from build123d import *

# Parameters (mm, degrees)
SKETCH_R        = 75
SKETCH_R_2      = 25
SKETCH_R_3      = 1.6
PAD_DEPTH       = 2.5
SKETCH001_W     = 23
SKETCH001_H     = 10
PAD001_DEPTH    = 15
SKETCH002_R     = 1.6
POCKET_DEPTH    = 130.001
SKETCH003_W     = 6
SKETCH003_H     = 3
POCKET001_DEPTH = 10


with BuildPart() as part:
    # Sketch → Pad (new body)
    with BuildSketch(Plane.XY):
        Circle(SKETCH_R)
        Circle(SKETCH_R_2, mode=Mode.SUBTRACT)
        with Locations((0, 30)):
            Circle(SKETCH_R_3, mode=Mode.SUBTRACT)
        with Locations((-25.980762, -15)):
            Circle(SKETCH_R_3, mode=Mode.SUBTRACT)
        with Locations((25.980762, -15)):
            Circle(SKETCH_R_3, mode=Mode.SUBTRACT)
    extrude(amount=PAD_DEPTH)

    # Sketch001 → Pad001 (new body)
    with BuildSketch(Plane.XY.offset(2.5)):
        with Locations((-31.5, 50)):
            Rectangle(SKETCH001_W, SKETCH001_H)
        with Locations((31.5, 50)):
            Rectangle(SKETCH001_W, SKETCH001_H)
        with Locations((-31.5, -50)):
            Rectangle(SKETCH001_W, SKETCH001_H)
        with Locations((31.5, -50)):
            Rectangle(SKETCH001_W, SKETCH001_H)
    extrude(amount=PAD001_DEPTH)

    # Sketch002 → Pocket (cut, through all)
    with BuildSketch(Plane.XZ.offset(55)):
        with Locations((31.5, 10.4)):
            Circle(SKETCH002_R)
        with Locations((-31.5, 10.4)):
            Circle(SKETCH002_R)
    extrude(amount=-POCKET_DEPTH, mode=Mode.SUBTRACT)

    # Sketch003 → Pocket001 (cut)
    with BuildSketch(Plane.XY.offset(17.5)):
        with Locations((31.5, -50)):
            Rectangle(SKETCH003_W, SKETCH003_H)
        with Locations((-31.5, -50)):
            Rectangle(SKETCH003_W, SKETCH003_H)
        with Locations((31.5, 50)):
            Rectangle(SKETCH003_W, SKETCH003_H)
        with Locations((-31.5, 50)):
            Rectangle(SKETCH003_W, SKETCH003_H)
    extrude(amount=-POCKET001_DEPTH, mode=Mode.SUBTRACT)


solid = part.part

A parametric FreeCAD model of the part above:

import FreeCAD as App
import Part
import Sketcher
from FreeCAD import Vector

doc = App.newDocument("Part")
body = doc.addObject("PartDesign::Body", "Body")

# Sketch on XY plane
sketch1 = doc.addObject("Sketcher::SketchObject", "Sketch")
body.addObject(sketch1)
sketch1.AttachmentSupport = (doc.XY_Plane, [""])
sketch1.MapMode = "FlatFace"
sketch1.addGeometry([
    Part.Circle(Vector(0, 0, 0), Vector(0, 0, 1), 75),  # 0
    Part.Circle(Vector(-26, -15, 0), Vector(0, 0, 1), 1.6),  # 1
    Part.Circle(Vector(0, 0, 0), Vector(0, 0, 1), 25),  # 2
    Part.Circle(Vector(26, -15, 0), Vector(0, 0, 1), 1.6),  # 3
    Part.Circle(Vector(0, 30, 0), Vector(0, 0, 1), 1.6),  # 4
], False)
sketch1.addConstraint([
    Sketcher.Constraint("Coincident", 0, 3, -1, 1),
    Sketcher.Constraint("Coincident", 2, 3, -1, 1),
    Sketcher.Constraint("Equal", 1, 3),
    Sketcher.Constraint("Equal", 3, 4),
    Sketcher.Constraint("Symmetric", 1, 3, 3, 3, -2),
    Sketcher.Constraint("PointOnObject", 4, 3, -2),
    Sketcher.Constraint("Diameter", 0, 150.0),
    Sketcher.Constraint("Diameter", 2, 50.0),
    Sketcher.Constraint("Diameter", 1, 3.2),
    Sketcher.Constraint("DistanceY", 1, 3, -1, 1, 15.0),
    Sketcher.Constraint("DistanceY", -1, 1, 4, 3, 30.0),
    Sketcher.Constraint("DistanceX", 1, 3, -1, 1, 25.980762),
])
pad1 = doc.addObject("PartDesign::Pad", "Pad")
body.addObject(pad1)
pad1.Profile = sketch1
pad1.Length = 2.5

# Sketch on XY plane
sketch2 = doc.addObject("Sketcher::SketchObject", "Sketch001")
body.addObject(sketch2)
sketch2.AttachmentSupport = (doc.XY_Plane, [""])
sketch2.MapMode = "FlatFace"
sketch2.AttachmentOffset = App.Placement(Vector(0, 0, 2.5), App.Rotation())
sketch2.addGeometry([
    Part.LineSegment(Vector(-43, 55, 0), Vector(-43, 45, 0)),  # 0
    Part.LineSegment(Vector(-43, 45, 0), Vector(-20, 45, 0)),  # 1
    Part.LineSegment(Vector(-20, 45, 0), Vector(-20, 55, 0)),  # 2
    Part.LineSegment(Vector(-20, 55, 0), Vector(-43, 55, 0)),  # 3
    Part.LineSegment(Vector(20, 55, 0), Vector(20, 45, 0)),  # 4
    Part.LineSegment(Vector(20, 45, 0), Vector(43, 45, 0)),  # 5
    Part.LineSegment(Vector(43, 45, 0), Vector(43, 55, 0)),  # 6
    Part.LineSegment(Vector(43, 55, 0), Vector(20, 55, 0)),  # 7
    Part.LineSegment(Vector(-43, -45, 0), Vector(-43, -55, 0)),  # 8
    Part.LineSegment(Vector(-43, -55, 0), Vector(-20, -55, 0)),  # 9
    Part.LineSegment(Vector(-20, -55, 0), Vector(-20, -45, 0)),  # 10
    Part.LineSegment(Vector(-20, -45, 0), Vector(-43, -45, 0)),  # 11
    Part.LineSegment(Vector(20, -45, 0), Vector(20, -55, 0)),  # 12
    Part.LineSegment(Vector(20, -55, 0), Vector(43, -55, 0)),  # 13
    Part.LineSegment(Vector(43, -55, 0), Vector(43, -45, 0)),  # 14
    Part.LineSegment(Vector(43, -45, 0), Vector(20, -45, 0)),  # 15
], False)
sketch2.addConstraint([
    Sketcher.Constraint("Coincident", 0, 2, 1, 1),
    Sketcher.Constraint("Coincident", 1, 2, 2, 1),
    Sketcher.Constraint("Coincident", 2, 2, 3, 1),
    Sketcher.Constraint("Coincident", 3, 2, 0, 1),
    Sketcher.Constraint("Coincident", 4, 2, 5, 1),
    Sketcher.Constraint("Coincident", 5, 2, 6, 1),
    Sketcher.Constraint("Coincident", 6, 2, 7, 1),
    Sketcher.Constraint("Coincident", 7, 2, 4, 1),
    Sketcher.Constraint("Coincident", 8, 2, 9, 1),
    Sketcher.Constraint("Coincident", 9, 2, 10, 1),
    Sketcher.Constraint("Coincident", 10, 2, 11, 1),
    Sketcher.Constraint("Coincident", 11, 2, 8, 1),
    Sketcher.Constraint("Coincident", 12, 2, 13, 1),
    Sketcher.Constraint("Coincident", 13, 2, 14, 1),
    Sketcher.Constraint("Coincident", 14, 2, 15, 1),
    Sketcher.Constraint("Coincident", 15, 2, 12, 1),
    Sketcher.Constraint("Vertical", 0),
    Sketcher.Constraint("Horizontal", 1),
    Sketcher.Constraint("Vertical", 2),
    Sketcher.Constraint("Horizontal", 3),
    Sketcher.Constraint("Vertical", 4),
    Sketcher.Constraint("Horizontal", 5),
    Sketcher.Constraint("Vertical", 6),
    Sketcher.Constraint("Horizontal", 7),
    Sketcher.Constraint("Vertical", 8),
    Sketcher.Constraint("Horizontal", 9),
    Sketcher.Constraint("Vertical", 10),
    Sketcher.Constraint("Horizontal", 11),
    Sketcher.Constraint("Vertical", 12),
    Sketcher.Constraint("Horizontal", 13),
    Sketcher.Constraint("Vertical", 14),
    Sketcher.Constraint("Horizontal", 15),
    Sketcher.Constraint("Symmetric", 6, 2, 8, 2, -1, 1),
    Sketcher.Constraint("Symmetric", 4, 2, 10, 2, -1, 1),
    Sketcher.Constraint("Symmetric", 2, 2, 12, 2, -1, 1),
    Sketcher.Constraint("Symmetric", 0, 2, 14, 2, -1, 1),
    Sketcher.Constraint("Symmetric", 1, 2, 4, 2, -2),
    Sketcher.Constraint("Symmetric", 3, 2, 6, 2, -2),
    Sketcher.Constraint("DistanceX", 1, 1, 1, 2, 23.0),
    Sketcher.Constraint("DistanceY", 0, 2, 0, 1, 10.0),
    Sketcher.Constraint("DistanceX", 0, 2, -1, 1, 43.0),
    Sketcher.Constraint("DistanceY", -1, 1, 0, 2, 45.0),
])
pad2 = doc.addObject("PartDesign::Pad", "Pad001")
body.addObject(pad2)
pad2.Profile = sketch2
pad2.Length = 15

# Sketch on XZ plane
sketch3 = doc.addObject("Sketcher::SketchObject", "Sketch002")
body.addObject(sketch3)
sketch3.AttachmentSupport = (doc.XZ_Plane, [""])
sketch3.MapMode = "FlatFace"
sketch3.AttachmentOffset = App.Placement(Vector(0, 0, 55), App.Rotation())
sketch3.addGeometry([
    Part.Circle(Vector(31.5, 10.4, 0), Vector(0, 0, 1), 1.6),
    Part.Circle(Vector(-31.5, 10.4, 0), Vector(0, 0, 1), 1.6),
], False)
sketch3.addConstraint([
    Sketcher.Constraint("Equal", 0, 1),
    Sketcher.Constraint("Symmetric", 0, 3, 1, 3, -2),
    Sketcher.Constraint("Diameter", 0, 3.2),
    Sketcher.Constraint("DistanceX", 1, 3, 0, 3, 63.0),
    Sketcher.Constraint("DistanceY", -1, 1, 0, 3, 10.4),
])
pocket1 = doc.addObject("PartDesign::Pocket", "Pocket")
body.addObject(pocket1)
pocket1.Profile = sketch3
pocket1.Type = "ThroughAll"

# Sketch on XY plane
sketch4 = doc.addObject("Sketcher::SketchObject", "Sketch003")
body.addObject(sketch4)
sketch4.AttachmentSupport = (doc.XY_Plane, [""])
sketch4.MapMode = "FlatFace"
sketch4.AttachmentOffset = App.Placement(Vector(0, 0, 17.5), App.Rotation())
sketch4.addGeometry([
    Part.LineSegment(Vector(28.5, -48.5, 0), Vector(28.5, -51.5, 0)),  # 0
    Part.LineSegment(Vector(28.5, -51.5, 0), Vector(34.5, -51.5, 0)),  # 1
    Part.LineSegment(Vector(34.5, -51.5, 0), Vector(34.5, -48.5, 0)),  # 2
    Part.LineSegment(Vector(34.5, -48.5, 0), Vector(28.5, -48.5, 0)),  # 3
    Part.LineSegment(Vector(-34.5, -48.5, 0), Vector(-34.5, -51.5, 0)),  # 4
    Part.LineSegment(Vector(-34.5, -51.5, 0), Vector(-28.5, -51.5, 0)),  # 5
    Part.LineSegment(Vector(-28.5, -51.5, 0), Vector(-28.5, -48.5, 0)),  # 6
    Part.LineSegment(Vector(-28.5, -48.5, 0), Vector(-34.5, -48.5, 0)),  # 7
    Part.LineSegment(Vector(28.5, 51.5, 0), Vector(28.5, 48.5, 0)),  # 8
    Part.LineSegment(Vector(28.5, 48.5, 0), Vector(34.5, 48.5, 0)),  # 9
    Part.LineSegment(Vector(34.5, 48.5, 0), Vector(34.5, 51.5, 0)),  # 10
    Part.LineSegment(Vector(34.5, 51.5, 0), Vector(28.5, 51.5, 0)),  # 11
    Part.LineSegment(Vector(-34.5, 51.5, 0), Vector(-34.5, 48.5, 0)),  # 12
    Part.LineSegment(Vector(-34.5, 48.5, 0), Vector(-28.5, 48.5, 0)),  # 13
    Part.LineSegment(Vector(-28.5, 48.5, 0), Vector(-28.5, 51.5, 0)),  # 14
    Part.LineSegment(Vector(-28.5, 51.5, 0), Vector(-34.5, 51.5, 0)),  # 15
], False)
sketch4.addConstraint([
    Sketcher.Constraint("Coincident", 0, 2, 1, 1),
    Sketcher.Constraint("Coincident", 1, 2, 2, 1),
    Sketcher.Constraint("Coincident", 2, 2, 3, 1),
    Sketcher.Constraint("Coincident", 3, 2, 0, 1),
    Sketcher.Constraint("Coincident", 4, 2, 5, 1),
    Sketcher.Constraint("Coincident", 5, 2, 6, 1),
    Sketcher.Constraint("Coincident", 6, 2, 7, 1),
    Sketcher.Constraint("Coincident", 7, 2, 4, 1),
    Sketcher.Constraint("Coincident", 8, 2, 9, 1),
    Sketcher.Constraint("Coincident", 9, 2, 10, 1),
    Sketcher.Constraint("Coincident", 10, 2, 11, 1),
    Sketcher.Constraint("Coincident", 11, 2, 8, 1),
    Sketcher.Constraint("Coincident", 12, 2, 13, 1),
    Sketcher.Constraint("Coincident", 13, 2, 14, 1),
    Sketcher.Constraint("Coincident", 14, 2, 15, 1),
    Sketcher.Constraint("Coincident", 15, 2, 12, 1),
    Sketcher.Constraint("Vertical", 0),
    Sketcher.Constraint("Horizontal", 1),
    Sketcher.Constraint("Vertical", 2),
    Sketcher.Constraint("Horizontal", 3),
    Sketcher.Constraint("Vertical", 4),
    Sketcher.Constraint("Horizontal", 5),
    Sketcher.Constraint("Vertical", 6),
    Sketcher.Constraint("Horizontal", 7),
    Sketcher.Constraint("Vertical", 8),
    Sketcher.Constraint("Horizontal", 9),
    Sketcher.Constraint("Vertical", 10),
    Sketcher.Constraint("Horizontal", 11),
    Sketcher.Constraint("Vertical", 12),
    Sketcher.Constraint("Horizontal", 13),
    Sketcher.Constraint("Vertical", 14),
    Sketcher.Constraint("Horizontal", 15),
    Sketcher.Constraint("Symmetric", 6, 2, 8, 2, -1, 1),
    Sketcher.Constraint("Symmetric", 4, 2, 10, 2, -1, 1),
    Sketcher.Constraint("Symmetric", 2, 2, 12, 2, -1, 1),
    Sketcher.Constraint("Symmetric", 0, 2, 14, 2, -1, 1),
    Sketcher.Constraint("Symmetric", 1, 2, 4, 2, -2),
    Sketcher.Constraint("Symmetric", 3, 2, 6, 2, -2),
    Sketcher.Constraint("DistanceX", 1, 1, 1, 2, 6.0),
    Sketcher.Constraint("DistanceY", 0, 2, 0, 1, 3.0),
    Sketcher.Constraint("DistanceX", 4, 2, 0, 2, 63.0),
    Sketcher.Constraint("DistanceY", 3, 2, 8, 2, 97.0),
])
pocket2 = doc.addObject("PartDesign::Pocket", "Pocket001")
body.addObject(pocket2)
pocket2.Profile = sketch4
pocket2.Length = 10

doc.recompute()
